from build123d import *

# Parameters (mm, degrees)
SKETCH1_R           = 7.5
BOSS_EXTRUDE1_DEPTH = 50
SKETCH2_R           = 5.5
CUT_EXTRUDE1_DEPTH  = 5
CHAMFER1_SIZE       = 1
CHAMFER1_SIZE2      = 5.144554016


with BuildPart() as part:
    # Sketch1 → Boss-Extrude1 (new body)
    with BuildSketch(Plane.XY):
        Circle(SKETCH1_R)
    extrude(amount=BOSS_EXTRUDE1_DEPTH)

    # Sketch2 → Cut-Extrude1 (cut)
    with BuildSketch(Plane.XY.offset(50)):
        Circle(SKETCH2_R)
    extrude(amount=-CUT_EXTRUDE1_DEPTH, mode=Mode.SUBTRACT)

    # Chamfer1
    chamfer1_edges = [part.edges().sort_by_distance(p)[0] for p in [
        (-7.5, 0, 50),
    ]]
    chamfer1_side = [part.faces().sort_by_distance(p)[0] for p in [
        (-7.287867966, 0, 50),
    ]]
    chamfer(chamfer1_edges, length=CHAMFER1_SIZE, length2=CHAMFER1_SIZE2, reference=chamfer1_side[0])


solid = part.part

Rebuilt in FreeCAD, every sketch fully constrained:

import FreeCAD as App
import Part
import Sketcher

V = App.Vector
Q = App.Units.Quantity


def edges_at(feature, points):
    """Names of the edges that pass closest to the given points."""
    edges = feature.Shape.Edges
    near = lambda p: min(range(len(edges)), key=lambda i: edges[i].distToShape(Part.Vertex(*p))[0])
    return sorted({f"Edge{near(p) + 1}" for p in points})

doc = App.newDocument("Part")
params = doc.addObject("Spreadsheet::Sheet", "Params")
for row, (alias, value) in enumerate([
    ("sketch1_diameter", "15 mm"),
    ("pad1_length", "50 mm"),
    ("sketch2_diameter", "11 mm"),
    ("pocket1_length", "5 mm"),
    ("chamfer_size", "1 mm"),
    ("chamfer_size2", "5.144554 mm"),
], start=1):
    params.set(f"A{row}", alias)
    params.set(f"B{row}", "=" + value)
    params.setAlias(f"B{row}", alias)

body = doc.addObject("PartDesign::Body", "Body")

# Sketch on XY plane
sketch1 = body.newObject("Sketcher::SketchObject", "Sketch")
sketch1.AttachmentSupport = (doc.getObject("XY_Plane"), [""])
sketch1.MapMode = "FlatFace"
sketch1.addGeometry(Part.Circle(V(0, 0, 0), V(0, 0, 1), 8), False)
sketch1.addConstraint(Sketcher.Constraint("Coincident", 0, 3, -1, 1))
sketch1.addConstraint(Sketcher.Constraint("Diameter", 0, Q("15 mm")))
sketch1.setExpression("Constraints[1]", "Params.sketch1_diameter")
pad1 = body.newObject("PartDesign::Pad", "Pad")
pad1.Profile = sketch1
pad1.setExpression("Length", "Params.pad1_length")

# Sketch on XY plane
sketch2 = body.newObject("Sketcher::SketchObject", "Sketch001")
sketch2.AttachmentSupport = (doc.getObject("XY_Plane"), [""])
sketch2.MapMode = "FlatFace"
sketch2.AttachmentOffset = App.Placement(V(0, 0, 50), App.Rotation())
sketch2.addGeometry(Part.Circle(V(0, 0, 0), V(0, 0, 1), 6), False)
sketch2.addConstraint(Sketcher.Constraint("Coincident", 0, 3, -1, 1))
sketch2.addConstraint(Sketcher.Constraint("Diameter", 0, Q("11 mm")))
sketch2.setExpression("Constraints[1]", "Params.sketch2_diameter")
pocket1 = body.newObject("PartDesign::Pocket", "Pocket")
pocket1.Profile = sketch2
pocket1.setExpression("Length", "Params.pocket1_length")
doc.recompute()

chamfer = body.newObject("PartDesign::Chamfer", "Chamfer")
chamfer.Base = (pocket1, edges_at(pocket1, [(-7.5, 0, 50)]))
chamfer.ChamferType = "Two distances"
chamfer.setExpression("Size", "Params.chamfer_size")
chamfer.setExpression("Size2", "Params.chamfer_size2")
chamfer.FlipDirection = True

doc.recompute()
